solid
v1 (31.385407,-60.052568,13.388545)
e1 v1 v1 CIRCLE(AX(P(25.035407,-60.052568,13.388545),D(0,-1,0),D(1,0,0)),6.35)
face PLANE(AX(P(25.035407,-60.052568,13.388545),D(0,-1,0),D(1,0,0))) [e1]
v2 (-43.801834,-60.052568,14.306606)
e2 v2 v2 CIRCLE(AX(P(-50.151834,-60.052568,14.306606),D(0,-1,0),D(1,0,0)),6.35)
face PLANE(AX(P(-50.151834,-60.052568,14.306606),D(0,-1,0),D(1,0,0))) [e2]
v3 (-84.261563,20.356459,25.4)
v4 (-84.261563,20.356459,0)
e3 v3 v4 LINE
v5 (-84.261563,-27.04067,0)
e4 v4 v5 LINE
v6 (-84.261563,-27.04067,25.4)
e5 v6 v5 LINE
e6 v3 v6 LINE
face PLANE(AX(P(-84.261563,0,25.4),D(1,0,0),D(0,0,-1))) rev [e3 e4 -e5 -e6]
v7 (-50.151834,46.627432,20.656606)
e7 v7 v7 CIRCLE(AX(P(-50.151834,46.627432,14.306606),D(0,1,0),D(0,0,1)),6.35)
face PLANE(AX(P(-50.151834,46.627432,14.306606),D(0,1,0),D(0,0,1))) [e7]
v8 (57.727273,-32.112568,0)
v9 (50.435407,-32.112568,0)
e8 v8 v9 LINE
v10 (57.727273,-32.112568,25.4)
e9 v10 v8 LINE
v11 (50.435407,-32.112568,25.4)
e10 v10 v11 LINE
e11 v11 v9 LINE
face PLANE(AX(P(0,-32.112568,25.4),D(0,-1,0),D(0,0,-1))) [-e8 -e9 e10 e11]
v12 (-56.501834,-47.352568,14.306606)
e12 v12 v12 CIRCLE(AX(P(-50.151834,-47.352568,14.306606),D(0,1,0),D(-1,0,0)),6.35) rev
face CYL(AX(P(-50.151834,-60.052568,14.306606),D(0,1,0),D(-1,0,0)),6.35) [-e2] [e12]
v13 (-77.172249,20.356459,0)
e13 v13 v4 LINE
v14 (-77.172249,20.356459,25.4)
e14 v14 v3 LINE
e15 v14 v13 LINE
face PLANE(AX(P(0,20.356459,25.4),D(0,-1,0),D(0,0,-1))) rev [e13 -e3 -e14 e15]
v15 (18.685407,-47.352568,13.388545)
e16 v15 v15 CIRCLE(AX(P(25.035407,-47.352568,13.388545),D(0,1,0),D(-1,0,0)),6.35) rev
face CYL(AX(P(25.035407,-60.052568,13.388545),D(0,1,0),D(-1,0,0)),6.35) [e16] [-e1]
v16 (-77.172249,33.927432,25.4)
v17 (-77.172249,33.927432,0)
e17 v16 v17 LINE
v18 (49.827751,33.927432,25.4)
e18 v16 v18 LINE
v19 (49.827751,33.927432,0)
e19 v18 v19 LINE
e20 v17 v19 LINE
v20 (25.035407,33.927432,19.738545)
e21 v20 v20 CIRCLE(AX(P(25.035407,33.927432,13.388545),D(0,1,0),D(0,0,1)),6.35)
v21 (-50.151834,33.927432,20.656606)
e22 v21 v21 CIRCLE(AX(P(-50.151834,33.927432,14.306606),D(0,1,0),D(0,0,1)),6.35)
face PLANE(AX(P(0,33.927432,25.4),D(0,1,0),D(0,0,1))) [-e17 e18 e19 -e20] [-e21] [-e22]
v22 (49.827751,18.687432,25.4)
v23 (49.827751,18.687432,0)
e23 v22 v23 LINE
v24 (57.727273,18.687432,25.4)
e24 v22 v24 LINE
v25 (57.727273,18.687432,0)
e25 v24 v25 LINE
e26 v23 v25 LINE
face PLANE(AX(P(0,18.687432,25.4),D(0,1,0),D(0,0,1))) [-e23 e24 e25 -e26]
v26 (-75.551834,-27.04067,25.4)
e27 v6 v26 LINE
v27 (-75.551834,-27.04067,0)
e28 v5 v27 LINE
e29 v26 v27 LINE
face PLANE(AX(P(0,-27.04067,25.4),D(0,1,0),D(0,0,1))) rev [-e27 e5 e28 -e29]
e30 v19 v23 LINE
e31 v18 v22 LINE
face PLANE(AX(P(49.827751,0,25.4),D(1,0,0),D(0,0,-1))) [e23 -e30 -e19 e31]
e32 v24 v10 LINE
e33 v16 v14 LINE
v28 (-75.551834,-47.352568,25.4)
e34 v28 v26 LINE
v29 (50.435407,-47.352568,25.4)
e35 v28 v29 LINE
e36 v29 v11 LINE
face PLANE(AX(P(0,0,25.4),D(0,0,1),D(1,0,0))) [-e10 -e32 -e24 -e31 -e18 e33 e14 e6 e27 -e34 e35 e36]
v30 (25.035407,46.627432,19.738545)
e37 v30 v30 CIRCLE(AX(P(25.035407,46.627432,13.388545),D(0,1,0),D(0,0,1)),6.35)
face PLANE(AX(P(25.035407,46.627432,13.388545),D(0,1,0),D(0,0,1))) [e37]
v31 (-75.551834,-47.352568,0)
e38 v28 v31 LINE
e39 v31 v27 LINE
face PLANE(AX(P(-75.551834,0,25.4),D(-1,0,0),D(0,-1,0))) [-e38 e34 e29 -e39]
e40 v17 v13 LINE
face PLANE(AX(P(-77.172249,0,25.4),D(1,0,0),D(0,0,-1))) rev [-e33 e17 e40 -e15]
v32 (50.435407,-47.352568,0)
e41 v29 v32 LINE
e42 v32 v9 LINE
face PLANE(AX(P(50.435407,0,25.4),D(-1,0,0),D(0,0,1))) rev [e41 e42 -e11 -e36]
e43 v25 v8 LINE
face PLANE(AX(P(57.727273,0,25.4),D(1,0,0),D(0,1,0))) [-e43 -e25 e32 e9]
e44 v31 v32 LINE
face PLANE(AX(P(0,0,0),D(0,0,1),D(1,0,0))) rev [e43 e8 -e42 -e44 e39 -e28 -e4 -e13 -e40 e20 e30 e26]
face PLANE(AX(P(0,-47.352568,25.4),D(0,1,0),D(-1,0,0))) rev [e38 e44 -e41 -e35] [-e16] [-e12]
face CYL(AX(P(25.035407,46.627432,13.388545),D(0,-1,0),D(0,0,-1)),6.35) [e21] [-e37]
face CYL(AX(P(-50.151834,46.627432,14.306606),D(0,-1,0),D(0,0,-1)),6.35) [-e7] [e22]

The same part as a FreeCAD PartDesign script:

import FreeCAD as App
import Part
import Sketcher

V = App.Vector
Q = App.Units.Quantity

doc = App.newDocument("Part")
body = doc.addObject("PartDesign::Body", "Body")

# Sketch on XY plane
sketch1 = body.newObject("Sketcher::SketchObject", "Sketch")
sketch1.AttachmentSupport = (doc.getObject("XY_Plane"), [""])
sketch1.MapMode = "FlatFace"
sketch1.addGeometry([
    Part.LineSegment(V(50, 34, 0), V(-77, 34, 0)),  # 0
    Part.LineSegment(V(-77, 34, 0), V(-77, 20, 0)),  # 1
    Part.LineSegment(V(-77, 20, 0), V(-84, 20, 0)),  # 2
    Part.LineSegment(V(-84, 20, 0), V(-84, -27, 0)),  # 3
    Part.LineSegment(V(-84, -27, 0), V(-76, -27, 0)),  # 4
    Part.LineSegment(V(-76, -27, 0), V(-76, -47, 0)),  # 5
    Part.LineSegment(V(-76, -47, 0), V(50, -47, 0)),  # 6
    Part.LineSegment(V(50, -47, 0), V(50, -32, 0)),  # 7
    Part.LineSegment(V(50, -32, 0), V(58, -32, 0)),  # 8
    Part.LineSegment(V(58, -32, 0), V(58, 19, 0)),  # 9
    Part.LineSegment(V(58, 19, 0), V(50, 19, 0)),  # 10
    Part.LineSegment(V(50, 19, 0), V(50, 34, 0)),  # 11
], False)
sketch1.addConstraint([
    Sketcher.Constraint("Coincident", 0, 2, 1, 1),
    Sketcher.Constraint("Coincident", 1, 2, 2, 1),
    Sketcher.Constraint("Coincident", 2, 2, 3, 1),
    Sketcher.Constraint("Coincident", 3, 2, 4, 1),
    Sketcher.Constraint("Coincident", 4, 2, 5, 1),
    Sketcher.Constraint("Coincident", 5, 2, 6, 1),
    Sketcher.Constraint("Coincident", 6, 2, 7, 1),
    Sketcher.Constraint("Coincident", 7, 2, 8, 1),
    Sketcher.Constraint("Coincident", 8, 2, 9, 1),
    Sketcher.Constraint("Coincident", 9, 2, 10, 1),
    Sketcher.Constraint("Coincident", 10, 2, 11, 1),
    Sketcher.Constraint("Coincident", 11, 2, 0, 1),
    Sketcher.Constraint("Horizontal", 0),
    Sketcher.Constraint("Vertical", 1),
    Sketcher.Constraint("Horizontal", 2),
    Sketcher.Constraint("Vertical", 3),
    Sketcher.Constraint("Horizontal", 4),
    Sketcher.Constraint("Vertical", 5),
    Sketcher.Constraint("Horizontal", 6),
    Sketcher.Constraint("Vertical", 7),
    Sketcher.Constraint("Horizontal", 8),
    Sketcher.Constraint("Vertical", 9),
    Sketcher.Constraint("Horizontal", 10),
    Sketcher.Constraint("Vertical", 11),
    Sketcher.Constraint("Equal", 7, 11),
    Sketcher.Constraint("DistanceX", 0, 2, 0, 1, Q("5 in")),
    Sketcher.Constraint("DistanceY", 9, 1, 9, 2, Q("2 in")),
    Sketcher.Constraint("DistanceY", 7, 1, 7, 2, Q("0.6 in")),
    Sketcher.Constraint("DistanceX", 4, 1, 4, 2, Q("8.709729 mm")),
    Sketcher.Constraint("DistanceX", 6, 1, 6, 2, Q("125.987241 mm")),
    Sketcher.Constraint("DistanceX", 10, 2, 10, 1, Q("7.899522 mm")),
    Sketcher.Constraint("DistanceY", 3, 2, 3, 1, Q("47.397129 mm")),
    Sketcher.Constraint("DistanceX", 2, 2, 2, 1, Q("7.089314 mm")),
    Sketcher.Constraint("DistanceY", 1, 2, 1, 1, Q("13.570973 mm")),
    Sketcher.Constraint("DistanceX", 0, 2, -1, 1, Q("77.172249 mm")),
    Sketcher.Constraint("DistanceY", -1, 1, 1, 2, Q("20.356459 mm")),
])
pad1 = body.newObject("PartDesign::Pad", "Pad")
pad1.Profile = sketch1
pad1.Length = Q("1 in")

# Sketch on XZ plane
sketch2 = body.newObject("Sketcher::SketchObject", "Sketch001")
sketch2.AttachmentSupport = (doc.getObject("XZ_Plane"), [""])
sketch2.MapMode = "FlatFace"
sketch2.AttachmentOffset = App.Placement(V(0, 0, -33.927432), App.Rotation())
sketch2.addGeometry([
    Part.Circle(V(-50, 14, 0), V(0, 0, 1), 6),
    Part.Circle(V(25, 13, 0), V(0, 0, 1), 6),
], False)
sketch2.addConstraint([
    Sketcher.Constraint("Equal", 0, 1),
    Sketcher.Constraint("Diameter", 0, Q("0.5 in")),
    Sketcher.Constraint("DistanceX", 0, 3, 1, 3, Q("75.187241 mm")),
    Sketcher.Constraint("DistanceY", 1, 3, 0, 3, Q("0.918061 mm")),
    Sketcher.Constraint("DistanceX", 0, 3, -1, 1, Q("50.151834 mm")),
    Sketcher.Constraint("DistanceY", -1, 1, 0, 3, Q("14.306606 mm")),
])
pad2 = body.newObject("PartDesign::Pad", "Pad001")
pad2.Profile = sketch2
pad2.Length = Q("0.5 in")
pad2.Reversed = True

# Sketch on XZ plane
sketch3 = body.newObject("Sketcher::SketchObject", "Sketch002")
sketch3.AttachmentSupport = (doc.getObject("XZ_Plane"), [""])
sketch3.MapMode = "FlatFace"
sketch3.AttachmentOffset = App.Placement(V(0, 0, 60.052568), App.Rotation())
sketch3.addGeometry([
    Part.Circle(V(-50, 14, 0), V(0, 0, 1), 6),
    Part.Circle(V(25, 13, 0), V(0, 0, 1), 6),
], False)
sketch3.addConstraint([
    Sketcher.Constraint("Equal", 0, 1),
    Sketcher.Constraint("Diameter", 0, Q("0.5 in")),
    Sketcher.Constraint("DistanceX", 0, 3, 1, 3, Q("75.187241 mm")),
    Sketcher.Constraint("DistanceY", 1, 3, 0, 3, Q("0.918061 mm")),
    Sketcher.Constraint("DistanceX", 0, 3, -1, 1, Q("50.151834 mm")),
    Sketcher.Constraint("DistanceY", -1, 1, 0, 3, Q("14.306606 mm")),
])
pad3 = body.newObject("PartDesign::Pad", "Pad002")
pad3.Profile = sketch3
pad3.Length = Q("0.5 in")
pad3.Reversed = True

doc.recompute()
